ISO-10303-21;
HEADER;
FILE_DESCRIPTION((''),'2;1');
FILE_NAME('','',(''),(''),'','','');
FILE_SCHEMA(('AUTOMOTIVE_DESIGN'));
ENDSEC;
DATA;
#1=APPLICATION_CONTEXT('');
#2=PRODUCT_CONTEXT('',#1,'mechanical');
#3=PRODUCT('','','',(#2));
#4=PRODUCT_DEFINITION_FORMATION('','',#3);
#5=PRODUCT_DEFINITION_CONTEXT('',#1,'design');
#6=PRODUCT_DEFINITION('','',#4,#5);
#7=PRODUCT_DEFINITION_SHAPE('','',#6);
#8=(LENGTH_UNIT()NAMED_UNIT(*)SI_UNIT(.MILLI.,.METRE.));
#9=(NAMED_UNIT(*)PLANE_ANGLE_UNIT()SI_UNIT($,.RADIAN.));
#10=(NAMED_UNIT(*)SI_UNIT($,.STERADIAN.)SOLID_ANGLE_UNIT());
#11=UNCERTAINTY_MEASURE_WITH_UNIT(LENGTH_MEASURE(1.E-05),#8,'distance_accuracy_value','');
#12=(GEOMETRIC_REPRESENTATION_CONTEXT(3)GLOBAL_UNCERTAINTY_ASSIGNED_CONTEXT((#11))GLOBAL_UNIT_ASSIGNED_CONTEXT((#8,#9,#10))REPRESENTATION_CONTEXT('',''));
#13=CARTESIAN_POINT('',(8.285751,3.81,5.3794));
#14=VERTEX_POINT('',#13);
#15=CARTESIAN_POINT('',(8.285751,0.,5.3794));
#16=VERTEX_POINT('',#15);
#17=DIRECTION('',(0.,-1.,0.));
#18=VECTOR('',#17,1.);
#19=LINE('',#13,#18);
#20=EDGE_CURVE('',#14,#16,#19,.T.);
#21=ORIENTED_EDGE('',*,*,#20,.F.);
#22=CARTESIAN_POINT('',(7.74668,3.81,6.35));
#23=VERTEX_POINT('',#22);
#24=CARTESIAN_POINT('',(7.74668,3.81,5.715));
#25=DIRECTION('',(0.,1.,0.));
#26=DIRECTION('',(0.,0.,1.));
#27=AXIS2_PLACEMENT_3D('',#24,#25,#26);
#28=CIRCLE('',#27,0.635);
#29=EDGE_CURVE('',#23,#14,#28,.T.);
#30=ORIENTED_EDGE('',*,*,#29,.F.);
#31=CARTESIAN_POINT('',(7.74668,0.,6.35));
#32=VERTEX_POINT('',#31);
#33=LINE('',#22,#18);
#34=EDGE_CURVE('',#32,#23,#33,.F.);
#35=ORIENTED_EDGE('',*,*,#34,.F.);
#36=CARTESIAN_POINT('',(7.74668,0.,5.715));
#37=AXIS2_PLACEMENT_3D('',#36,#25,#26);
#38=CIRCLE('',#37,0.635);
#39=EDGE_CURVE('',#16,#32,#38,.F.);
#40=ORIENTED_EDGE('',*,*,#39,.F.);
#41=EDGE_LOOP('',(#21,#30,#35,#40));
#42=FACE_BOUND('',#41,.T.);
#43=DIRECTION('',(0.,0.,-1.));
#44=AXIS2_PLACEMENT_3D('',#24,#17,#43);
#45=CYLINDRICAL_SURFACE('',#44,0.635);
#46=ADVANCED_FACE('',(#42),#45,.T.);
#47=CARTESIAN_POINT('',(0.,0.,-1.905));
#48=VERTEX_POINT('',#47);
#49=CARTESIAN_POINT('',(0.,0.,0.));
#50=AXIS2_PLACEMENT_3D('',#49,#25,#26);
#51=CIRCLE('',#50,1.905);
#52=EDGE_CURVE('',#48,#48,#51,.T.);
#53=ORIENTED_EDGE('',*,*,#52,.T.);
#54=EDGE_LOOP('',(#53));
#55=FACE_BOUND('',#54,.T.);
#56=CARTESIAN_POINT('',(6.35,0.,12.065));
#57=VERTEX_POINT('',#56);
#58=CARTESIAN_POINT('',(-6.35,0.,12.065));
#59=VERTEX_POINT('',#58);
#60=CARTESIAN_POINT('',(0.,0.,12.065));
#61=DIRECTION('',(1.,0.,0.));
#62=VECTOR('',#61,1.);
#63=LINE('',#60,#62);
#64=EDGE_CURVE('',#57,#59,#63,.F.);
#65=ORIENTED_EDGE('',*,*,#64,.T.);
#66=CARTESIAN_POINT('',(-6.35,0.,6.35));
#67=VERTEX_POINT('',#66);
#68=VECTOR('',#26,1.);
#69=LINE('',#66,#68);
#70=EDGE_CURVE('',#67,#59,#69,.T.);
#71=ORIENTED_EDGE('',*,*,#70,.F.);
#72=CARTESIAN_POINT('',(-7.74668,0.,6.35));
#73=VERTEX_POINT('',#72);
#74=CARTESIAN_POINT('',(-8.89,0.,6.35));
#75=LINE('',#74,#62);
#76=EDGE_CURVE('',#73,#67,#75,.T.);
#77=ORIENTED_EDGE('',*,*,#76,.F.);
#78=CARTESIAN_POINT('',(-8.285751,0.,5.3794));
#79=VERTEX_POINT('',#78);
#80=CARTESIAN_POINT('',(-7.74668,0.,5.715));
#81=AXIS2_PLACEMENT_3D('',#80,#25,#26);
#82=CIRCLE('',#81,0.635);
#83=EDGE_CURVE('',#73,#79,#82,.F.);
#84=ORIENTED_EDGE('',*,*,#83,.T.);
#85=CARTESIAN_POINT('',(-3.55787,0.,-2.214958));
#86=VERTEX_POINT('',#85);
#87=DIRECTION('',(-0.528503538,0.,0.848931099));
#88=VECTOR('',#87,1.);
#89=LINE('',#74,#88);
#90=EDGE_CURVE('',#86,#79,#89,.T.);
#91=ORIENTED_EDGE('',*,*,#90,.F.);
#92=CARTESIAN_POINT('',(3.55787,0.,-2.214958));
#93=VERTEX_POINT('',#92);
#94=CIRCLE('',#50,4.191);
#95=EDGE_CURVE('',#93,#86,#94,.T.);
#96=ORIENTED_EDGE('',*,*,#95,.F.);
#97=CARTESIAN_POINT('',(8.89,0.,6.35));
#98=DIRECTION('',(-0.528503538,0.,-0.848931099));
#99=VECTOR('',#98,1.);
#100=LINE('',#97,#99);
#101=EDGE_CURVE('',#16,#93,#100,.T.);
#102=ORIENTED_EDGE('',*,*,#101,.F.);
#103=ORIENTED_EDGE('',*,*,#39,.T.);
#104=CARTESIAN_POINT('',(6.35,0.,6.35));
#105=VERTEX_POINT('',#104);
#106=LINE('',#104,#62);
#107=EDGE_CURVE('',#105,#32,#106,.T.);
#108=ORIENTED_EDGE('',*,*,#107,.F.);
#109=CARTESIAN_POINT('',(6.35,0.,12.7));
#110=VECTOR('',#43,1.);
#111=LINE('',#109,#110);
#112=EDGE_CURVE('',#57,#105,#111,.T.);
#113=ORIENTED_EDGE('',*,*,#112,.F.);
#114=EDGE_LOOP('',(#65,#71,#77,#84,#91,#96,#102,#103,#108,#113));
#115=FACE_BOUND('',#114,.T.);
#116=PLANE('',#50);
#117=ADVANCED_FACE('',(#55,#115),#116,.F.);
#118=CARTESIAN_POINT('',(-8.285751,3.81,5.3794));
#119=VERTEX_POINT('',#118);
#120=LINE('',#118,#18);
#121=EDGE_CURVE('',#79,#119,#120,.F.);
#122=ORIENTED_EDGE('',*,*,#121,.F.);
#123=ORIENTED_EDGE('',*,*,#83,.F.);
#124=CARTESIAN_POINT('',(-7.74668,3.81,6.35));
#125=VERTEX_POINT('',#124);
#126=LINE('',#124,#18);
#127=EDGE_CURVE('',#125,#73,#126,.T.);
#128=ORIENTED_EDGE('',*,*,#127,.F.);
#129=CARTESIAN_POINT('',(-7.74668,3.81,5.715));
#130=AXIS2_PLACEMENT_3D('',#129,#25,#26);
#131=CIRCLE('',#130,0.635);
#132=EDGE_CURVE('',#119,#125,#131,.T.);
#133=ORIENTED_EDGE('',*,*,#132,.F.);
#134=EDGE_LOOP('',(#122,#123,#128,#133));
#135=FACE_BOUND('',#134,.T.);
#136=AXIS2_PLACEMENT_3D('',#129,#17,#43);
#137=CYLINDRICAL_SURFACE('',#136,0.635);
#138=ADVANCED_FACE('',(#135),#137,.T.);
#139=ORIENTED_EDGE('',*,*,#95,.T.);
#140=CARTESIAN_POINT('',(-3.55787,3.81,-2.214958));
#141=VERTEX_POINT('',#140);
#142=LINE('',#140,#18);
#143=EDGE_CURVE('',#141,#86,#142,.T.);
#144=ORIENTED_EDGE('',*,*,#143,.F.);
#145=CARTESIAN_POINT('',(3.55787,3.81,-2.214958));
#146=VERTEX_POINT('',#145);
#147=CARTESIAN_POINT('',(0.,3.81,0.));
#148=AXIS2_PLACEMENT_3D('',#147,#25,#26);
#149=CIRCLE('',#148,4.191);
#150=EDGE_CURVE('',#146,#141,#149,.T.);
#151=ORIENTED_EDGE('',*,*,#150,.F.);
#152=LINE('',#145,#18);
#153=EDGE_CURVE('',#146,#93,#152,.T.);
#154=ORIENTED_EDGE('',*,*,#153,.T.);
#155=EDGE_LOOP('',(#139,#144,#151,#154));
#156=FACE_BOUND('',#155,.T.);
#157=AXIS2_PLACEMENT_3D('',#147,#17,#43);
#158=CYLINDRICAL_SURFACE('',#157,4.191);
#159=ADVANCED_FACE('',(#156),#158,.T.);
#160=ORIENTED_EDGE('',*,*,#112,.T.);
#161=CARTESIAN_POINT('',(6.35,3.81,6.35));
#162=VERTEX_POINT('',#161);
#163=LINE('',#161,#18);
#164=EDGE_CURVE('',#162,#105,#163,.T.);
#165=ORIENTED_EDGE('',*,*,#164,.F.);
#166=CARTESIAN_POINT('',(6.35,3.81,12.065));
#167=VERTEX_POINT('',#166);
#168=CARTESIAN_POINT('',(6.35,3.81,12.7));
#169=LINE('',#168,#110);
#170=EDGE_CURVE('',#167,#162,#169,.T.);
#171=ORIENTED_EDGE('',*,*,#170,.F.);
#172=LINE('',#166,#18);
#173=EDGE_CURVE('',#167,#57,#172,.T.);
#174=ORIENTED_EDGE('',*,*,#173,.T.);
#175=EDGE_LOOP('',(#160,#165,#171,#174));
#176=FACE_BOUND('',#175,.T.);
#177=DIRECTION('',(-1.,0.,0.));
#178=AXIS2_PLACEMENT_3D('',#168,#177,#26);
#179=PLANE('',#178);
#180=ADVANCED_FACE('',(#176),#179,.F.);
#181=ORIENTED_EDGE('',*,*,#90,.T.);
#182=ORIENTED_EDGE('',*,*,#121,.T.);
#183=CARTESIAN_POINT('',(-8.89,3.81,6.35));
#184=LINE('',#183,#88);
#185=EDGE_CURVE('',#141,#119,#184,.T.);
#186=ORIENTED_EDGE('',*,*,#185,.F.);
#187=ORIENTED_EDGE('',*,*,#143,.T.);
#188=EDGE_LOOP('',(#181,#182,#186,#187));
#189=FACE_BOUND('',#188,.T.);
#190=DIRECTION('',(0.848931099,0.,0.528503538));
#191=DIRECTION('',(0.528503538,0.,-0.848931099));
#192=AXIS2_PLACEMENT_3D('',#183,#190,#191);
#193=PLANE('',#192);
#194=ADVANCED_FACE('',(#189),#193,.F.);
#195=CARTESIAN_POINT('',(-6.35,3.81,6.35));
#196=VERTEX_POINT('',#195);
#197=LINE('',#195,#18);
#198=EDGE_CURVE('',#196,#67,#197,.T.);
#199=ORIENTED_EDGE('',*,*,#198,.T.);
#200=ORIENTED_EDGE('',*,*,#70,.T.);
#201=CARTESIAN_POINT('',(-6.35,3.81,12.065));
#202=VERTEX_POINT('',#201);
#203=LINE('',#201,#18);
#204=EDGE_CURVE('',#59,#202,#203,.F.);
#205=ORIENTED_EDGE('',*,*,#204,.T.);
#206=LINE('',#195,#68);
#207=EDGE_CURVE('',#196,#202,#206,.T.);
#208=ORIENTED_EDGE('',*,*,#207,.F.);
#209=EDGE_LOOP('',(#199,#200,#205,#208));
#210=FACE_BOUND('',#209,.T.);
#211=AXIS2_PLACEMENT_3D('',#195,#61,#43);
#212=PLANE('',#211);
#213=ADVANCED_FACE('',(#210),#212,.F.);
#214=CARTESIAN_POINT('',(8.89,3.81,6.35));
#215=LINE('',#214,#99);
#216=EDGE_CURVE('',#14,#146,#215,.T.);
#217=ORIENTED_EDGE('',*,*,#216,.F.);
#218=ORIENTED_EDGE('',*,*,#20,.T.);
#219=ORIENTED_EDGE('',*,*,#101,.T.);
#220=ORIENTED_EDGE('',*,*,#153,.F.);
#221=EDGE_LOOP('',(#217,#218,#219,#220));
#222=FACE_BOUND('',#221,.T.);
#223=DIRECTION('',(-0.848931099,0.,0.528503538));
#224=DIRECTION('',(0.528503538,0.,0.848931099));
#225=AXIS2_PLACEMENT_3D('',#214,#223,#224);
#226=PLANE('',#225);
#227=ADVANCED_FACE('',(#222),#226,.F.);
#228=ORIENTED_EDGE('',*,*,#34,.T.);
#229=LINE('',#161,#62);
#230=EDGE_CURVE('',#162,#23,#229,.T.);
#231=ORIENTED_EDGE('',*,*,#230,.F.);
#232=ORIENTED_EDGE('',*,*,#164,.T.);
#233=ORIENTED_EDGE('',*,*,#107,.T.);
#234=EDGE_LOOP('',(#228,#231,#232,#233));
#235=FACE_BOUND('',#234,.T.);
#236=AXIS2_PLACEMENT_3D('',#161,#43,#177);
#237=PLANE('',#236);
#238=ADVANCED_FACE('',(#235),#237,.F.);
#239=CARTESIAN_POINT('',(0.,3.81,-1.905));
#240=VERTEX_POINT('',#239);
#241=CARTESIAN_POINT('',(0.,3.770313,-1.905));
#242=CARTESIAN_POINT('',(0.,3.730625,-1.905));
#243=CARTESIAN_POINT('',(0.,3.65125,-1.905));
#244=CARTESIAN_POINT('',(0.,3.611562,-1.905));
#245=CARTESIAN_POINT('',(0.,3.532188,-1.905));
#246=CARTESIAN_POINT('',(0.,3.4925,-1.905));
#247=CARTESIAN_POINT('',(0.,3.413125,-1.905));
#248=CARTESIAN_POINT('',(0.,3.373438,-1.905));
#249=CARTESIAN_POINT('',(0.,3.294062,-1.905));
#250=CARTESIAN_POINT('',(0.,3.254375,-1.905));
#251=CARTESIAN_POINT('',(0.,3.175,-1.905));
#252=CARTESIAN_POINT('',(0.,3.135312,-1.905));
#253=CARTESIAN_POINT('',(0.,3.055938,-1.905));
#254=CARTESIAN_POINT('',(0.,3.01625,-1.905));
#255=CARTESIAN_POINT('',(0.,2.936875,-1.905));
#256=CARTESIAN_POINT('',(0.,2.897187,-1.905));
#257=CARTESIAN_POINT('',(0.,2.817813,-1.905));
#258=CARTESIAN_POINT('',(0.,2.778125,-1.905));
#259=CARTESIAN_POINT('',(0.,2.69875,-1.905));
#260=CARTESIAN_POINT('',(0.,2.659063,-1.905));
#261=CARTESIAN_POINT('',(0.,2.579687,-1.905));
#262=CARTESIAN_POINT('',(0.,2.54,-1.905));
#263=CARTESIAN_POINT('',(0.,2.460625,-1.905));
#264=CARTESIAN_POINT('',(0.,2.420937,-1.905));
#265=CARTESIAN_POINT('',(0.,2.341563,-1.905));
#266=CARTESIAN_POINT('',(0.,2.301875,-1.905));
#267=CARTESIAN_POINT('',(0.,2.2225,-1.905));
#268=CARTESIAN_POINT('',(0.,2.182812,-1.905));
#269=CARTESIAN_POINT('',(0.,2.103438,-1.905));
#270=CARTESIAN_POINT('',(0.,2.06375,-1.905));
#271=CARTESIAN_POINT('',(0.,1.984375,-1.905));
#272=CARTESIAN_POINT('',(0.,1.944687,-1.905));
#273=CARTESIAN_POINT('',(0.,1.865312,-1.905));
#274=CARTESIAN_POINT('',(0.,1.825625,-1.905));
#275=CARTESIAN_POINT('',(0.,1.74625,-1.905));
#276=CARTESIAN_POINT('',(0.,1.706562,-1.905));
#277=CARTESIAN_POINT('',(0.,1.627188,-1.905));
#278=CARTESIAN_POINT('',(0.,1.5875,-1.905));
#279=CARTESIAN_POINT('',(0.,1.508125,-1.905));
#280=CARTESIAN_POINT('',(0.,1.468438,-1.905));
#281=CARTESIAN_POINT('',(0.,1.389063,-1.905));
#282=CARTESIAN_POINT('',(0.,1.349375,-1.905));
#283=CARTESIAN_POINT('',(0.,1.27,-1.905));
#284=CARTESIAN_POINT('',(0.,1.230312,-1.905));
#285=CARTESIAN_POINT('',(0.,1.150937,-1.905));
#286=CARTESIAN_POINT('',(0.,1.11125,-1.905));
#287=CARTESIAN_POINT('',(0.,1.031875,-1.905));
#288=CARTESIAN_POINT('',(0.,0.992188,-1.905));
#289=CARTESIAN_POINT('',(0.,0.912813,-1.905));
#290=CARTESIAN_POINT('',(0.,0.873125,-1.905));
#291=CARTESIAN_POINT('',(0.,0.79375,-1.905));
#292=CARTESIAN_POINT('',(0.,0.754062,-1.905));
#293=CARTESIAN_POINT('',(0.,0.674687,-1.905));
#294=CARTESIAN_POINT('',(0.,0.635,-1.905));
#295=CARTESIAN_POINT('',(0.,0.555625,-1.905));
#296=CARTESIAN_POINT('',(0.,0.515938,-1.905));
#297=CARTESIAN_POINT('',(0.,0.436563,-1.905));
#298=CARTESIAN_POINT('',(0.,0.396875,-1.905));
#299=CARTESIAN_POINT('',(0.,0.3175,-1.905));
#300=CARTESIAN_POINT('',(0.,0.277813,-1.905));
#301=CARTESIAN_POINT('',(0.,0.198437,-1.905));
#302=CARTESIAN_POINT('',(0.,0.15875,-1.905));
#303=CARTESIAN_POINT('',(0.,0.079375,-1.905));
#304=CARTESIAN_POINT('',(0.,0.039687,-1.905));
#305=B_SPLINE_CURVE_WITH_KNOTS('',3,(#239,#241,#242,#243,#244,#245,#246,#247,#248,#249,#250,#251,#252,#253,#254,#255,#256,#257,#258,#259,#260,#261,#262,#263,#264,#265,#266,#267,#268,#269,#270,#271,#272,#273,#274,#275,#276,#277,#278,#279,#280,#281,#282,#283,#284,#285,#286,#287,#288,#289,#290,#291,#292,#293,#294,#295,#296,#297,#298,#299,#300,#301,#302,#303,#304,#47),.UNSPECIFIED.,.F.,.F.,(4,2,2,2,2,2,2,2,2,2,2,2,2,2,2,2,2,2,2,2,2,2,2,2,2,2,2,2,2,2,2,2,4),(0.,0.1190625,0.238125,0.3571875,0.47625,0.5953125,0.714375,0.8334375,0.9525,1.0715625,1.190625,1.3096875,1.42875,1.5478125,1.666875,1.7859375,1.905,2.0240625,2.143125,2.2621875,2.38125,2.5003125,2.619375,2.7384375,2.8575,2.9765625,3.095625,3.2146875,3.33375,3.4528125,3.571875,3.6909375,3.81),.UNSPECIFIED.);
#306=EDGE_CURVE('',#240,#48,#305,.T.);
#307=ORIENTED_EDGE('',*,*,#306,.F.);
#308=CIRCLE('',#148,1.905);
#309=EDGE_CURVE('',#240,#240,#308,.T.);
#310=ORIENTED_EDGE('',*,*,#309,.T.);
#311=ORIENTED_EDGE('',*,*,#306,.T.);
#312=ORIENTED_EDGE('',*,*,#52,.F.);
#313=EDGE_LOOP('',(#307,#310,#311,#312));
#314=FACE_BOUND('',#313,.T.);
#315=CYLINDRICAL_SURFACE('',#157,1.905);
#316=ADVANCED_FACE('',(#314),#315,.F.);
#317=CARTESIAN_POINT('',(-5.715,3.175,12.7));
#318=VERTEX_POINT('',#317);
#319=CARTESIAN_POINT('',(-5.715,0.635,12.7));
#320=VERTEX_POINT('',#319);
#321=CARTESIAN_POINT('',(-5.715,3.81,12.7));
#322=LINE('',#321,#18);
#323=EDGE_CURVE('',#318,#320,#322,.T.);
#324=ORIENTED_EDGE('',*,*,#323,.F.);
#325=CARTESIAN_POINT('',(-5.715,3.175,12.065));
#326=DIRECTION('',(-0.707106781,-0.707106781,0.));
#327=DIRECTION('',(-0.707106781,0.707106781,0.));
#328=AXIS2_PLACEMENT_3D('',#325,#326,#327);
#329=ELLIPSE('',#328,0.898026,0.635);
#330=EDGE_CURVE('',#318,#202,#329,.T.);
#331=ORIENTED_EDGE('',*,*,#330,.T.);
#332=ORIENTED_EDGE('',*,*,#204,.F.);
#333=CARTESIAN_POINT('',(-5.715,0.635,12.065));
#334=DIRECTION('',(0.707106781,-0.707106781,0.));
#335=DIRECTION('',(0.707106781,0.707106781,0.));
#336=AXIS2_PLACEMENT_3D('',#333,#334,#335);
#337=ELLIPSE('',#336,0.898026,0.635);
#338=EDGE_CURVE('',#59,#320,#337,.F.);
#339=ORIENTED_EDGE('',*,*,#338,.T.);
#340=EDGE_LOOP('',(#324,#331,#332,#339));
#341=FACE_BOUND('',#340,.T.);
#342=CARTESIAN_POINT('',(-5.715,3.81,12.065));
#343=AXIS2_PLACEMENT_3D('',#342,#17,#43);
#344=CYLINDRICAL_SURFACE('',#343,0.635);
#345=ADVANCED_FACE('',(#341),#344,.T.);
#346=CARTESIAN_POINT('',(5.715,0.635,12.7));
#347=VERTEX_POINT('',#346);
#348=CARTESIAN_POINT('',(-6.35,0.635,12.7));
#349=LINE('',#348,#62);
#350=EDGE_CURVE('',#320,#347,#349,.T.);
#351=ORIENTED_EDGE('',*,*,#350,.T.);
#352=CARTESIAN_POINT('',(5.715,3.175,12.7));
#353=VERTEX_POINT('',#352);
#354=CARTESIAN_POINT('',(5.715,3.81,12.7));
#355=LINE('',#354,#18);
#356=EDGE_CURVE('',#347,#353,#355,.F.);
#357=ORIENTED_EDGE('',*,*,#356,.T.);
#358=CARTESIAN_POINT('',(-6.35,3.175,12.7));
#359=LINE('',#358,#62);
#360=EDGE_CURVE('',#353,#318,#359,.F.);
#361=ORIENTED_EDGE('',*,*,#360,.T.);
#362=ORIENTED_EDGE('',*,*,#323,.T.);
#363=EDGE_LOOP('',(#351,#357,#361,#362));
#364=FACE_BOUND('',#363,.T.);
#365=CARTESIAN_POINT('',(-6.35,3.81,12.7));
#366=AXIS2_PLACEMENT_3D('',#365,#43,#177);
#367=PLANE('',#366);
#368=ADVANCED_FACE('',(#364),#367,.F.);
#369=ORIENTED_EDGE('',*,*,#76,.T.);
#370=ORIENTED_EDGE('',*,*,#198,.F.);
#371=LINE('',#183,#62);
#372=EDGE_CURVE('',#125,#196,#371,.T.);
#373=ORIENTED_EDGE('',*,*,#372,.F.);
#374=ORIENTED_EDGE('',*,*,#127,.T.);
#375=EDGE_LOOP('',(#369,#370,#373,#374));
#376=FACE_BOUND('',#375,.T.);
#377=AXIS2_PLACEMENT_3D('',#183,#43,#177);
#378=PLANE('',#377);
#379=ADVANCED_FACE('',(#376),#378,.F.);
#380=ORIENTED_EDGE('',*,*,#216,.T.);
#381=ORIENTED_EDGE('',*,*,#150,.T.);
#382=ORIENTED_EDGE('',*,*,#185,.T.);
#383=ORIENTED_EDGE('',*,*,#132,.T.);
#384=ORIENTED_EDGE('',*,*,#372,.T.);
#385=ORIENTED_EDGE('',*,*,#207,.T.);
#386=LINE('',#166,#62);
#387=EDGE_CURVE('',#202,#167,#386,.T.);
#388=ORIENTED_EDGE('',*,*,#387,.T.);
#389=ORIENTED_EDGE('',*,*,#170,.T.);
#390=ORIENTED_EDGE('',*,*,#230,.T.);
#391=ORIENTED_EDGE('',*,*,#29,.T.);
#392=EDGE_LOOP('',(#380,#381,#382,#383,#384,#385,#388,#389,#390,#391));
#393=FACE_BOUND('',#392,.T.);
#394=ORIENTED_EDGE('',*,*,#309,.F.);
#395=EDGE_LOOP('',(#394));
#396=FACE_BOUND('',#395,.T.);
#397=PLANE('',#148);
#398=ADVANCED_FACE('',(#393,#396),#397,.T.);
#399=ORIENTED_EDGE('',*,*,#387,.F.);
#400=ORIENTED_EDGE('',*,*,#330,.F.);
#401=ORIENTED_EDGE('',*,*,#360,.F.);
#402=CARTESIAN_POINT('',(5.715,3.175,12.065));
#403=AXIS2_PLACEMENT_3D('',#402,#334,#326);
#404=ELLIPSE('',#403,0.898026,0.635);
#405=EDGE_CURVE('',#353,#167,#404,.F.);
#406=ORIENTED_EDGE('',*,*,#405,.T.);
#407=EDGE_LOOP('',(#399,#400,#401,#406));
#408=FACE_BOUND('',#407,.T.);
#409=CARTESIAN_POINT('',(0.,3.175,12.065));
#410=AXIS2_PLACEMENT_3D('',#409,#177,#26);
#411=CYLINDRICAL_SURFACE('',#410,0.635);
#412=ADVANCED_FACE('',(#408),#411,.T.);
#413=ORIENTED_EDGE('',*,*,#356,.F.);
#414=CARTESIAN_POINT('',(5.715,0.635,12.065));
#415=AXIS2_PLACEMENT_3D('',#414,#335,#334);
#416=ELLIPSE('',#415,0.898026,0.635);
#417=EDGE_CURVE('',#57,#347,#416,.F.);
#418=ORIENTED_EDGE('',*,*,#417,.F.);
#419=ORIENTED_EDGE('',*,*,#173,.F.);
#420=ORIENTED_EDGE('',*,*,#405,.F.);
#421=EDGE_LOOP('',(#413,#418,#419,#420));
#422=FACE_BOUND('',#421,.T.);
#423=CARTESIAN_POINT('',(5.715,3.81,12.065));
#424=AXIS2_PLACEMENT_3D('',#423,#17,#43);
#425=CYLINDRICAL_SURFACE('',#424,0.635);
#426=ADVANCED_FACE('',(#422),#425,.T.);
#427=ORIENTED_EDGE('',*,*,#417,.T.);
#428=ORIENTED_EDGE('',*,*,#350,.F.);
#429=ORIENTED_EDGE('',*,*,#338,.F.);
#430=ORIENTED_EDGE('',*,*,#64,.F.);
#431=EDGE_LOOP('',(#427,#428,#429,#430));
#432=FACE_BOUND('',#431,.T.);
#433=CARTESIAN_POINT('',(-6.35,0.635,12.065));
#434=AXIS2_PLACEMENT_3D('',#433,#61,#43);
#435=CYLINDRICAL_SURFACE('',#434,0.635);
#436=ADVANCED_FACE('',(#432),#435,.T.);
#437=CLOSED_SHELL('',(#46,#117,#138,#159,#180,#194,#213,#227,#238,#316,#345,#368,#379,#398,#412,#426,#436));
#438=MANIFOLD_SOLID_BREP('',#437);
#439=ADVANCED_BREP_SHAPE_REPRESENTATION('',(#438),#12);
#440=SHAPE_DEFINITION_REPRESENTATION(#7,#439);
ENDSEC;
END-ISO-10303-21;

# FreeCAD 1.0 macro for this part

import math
import FreeCAD as App
import Part
import Sketcher

V = App.Vector
Q = App.Units.Quantity


def edges_at(feature, points):
    """Names of the edges that pass closest to the given points."""
    edges = feature.Shape.Edges
    near = lambda p: min(range(len(edges)), key=lambda i: edges[i].distToShape(Part.Vertex(*p))[0])
    return sorted({f"Edge{near(p) + 1}" for p in points})

doc = App.newDocument("Part")
body = doc.addObject("PartDesign::Body", "Body")

sketch1 = body.newObject("Sketcher::SketchObject", "Sketch")
sketch1.AttachmentSupport = (doc.getObject("XZ_Plane"), [""])
sketch1.MapMode = "FlatFace"
sketch1.addGeometry([
    Part.LineSegment(V(-8.9, 6.3, 0), V(-6.3, 6.3, 0)),
    Part.LineSegment(V(-6.3, 6.3, 0), V(-6.3, 12.7, 0)),
    Part.LineSegment(V(-6.3, 12.7, 0), V(6.3, 12.7, 0)),
    Part.LineSegment(V(6.3, 12.7, 0), V(6.3, 6.3, 0)),
    Part.LineSegment(V(6.3, 6.3, 0), V(8.9, 6.3, 0)),
    Part.LineSegment(V(8.9, 6.3, 0), V(3.6, -2.2, 0)),
    Part.ArcOfCircle(Part.Circle(V(0, 0, 0), V(0, 0, 1), 4.2), math.radians(-148), math.radians(-32)),
    Part.LineSegment(V(-3.6, -2.2, 0), V(-8.9, 6.3, 0)),
    Part.Circle(V(0, 0, 0), V(0, 0, 1), 1.9),
], False)
sketch1.addConstraint([
    Sketcher.Constraint("Coincident", 0, 2, 1, 1),
    Sketcher.Constraint("Coincident", 1, 2, 2, 1),
    Sketcher.Constraint("Coincident", 2, 2, 3, 1),
    Sketcher.Constraint("Coincident", 3, 2, 4, 1),
    Sketcher.Constraint("Coincident", 4, 2, 5, 1),
    Sketcher.Constraint("Tangent", 5, 2, 6, 2),
    Sketcher.Constraint("Tangent", 6, 1, 7, 1),
    Sketcher.Constraint("Coincident", 7, 2, 0, 1),
    Sketcher.Constraint("Horizontal", 0),
    Sketcher.Constraint("Vertical", 1),
    Sketcher.Constraint("Horizontal", 2),
    Sketcher.Constraint("Vertical", 3),
    Sketcher.Constraint("Horizontal", 4),
    Sketcher.Constraint("Coincident", 6, 3, -1, 1),
    Sketcher.Constraint("Coincident", 8, 3, -1, 1),
    Sketcher.Constraint("Symmetric", 0, 2, 3, 2, -2),
    Sketcher.Constraint("Horizontal", 5, 2, 6, 1),
    Sketcher.Constraint("Diameter", 8, Q("0.15 in")),
    Sketcher.Constraint("DistanceX", 0, 1, 0, 2, Q("0.1 in")),
    Sketcher.Constraint("DistanceX", 2, 1, 2, 2, Q("0.5 in")),
    Sketcher.Constraint("Radius", 6, Q("0.165 in")),
    Sketcher.Constraint("DistanceY", 1, 1, 1, 2, Q("0.25 in")),
    Sketcher.Constraint("DistanceY", -1, 1, 1, 2, Q("0.5 in")),
])
pad1 = body.newObject("PartDesign::Pad", "Pad")
pad1.Profile = sketch1
pad1.Length = Q("0.15 in")
pad1.Reversed = True
doc.recompute()

fillet = body.newObject("PartDesign::Fillet", "Fillet")
fillet.Base = (pad1, edges_at(pad1, [
    (0, 0, 12.7),
    (8.89, 1.905, 6.35),
    (6.35, 1.905, 12.7),
    (-6.35, 1.905, 12.7),
    (-8.89, 1.905, 6.35),
    (0, 3.81, 12.7),
]))
fillet.Radius = Q("0.025 in")

doc.recompute()
